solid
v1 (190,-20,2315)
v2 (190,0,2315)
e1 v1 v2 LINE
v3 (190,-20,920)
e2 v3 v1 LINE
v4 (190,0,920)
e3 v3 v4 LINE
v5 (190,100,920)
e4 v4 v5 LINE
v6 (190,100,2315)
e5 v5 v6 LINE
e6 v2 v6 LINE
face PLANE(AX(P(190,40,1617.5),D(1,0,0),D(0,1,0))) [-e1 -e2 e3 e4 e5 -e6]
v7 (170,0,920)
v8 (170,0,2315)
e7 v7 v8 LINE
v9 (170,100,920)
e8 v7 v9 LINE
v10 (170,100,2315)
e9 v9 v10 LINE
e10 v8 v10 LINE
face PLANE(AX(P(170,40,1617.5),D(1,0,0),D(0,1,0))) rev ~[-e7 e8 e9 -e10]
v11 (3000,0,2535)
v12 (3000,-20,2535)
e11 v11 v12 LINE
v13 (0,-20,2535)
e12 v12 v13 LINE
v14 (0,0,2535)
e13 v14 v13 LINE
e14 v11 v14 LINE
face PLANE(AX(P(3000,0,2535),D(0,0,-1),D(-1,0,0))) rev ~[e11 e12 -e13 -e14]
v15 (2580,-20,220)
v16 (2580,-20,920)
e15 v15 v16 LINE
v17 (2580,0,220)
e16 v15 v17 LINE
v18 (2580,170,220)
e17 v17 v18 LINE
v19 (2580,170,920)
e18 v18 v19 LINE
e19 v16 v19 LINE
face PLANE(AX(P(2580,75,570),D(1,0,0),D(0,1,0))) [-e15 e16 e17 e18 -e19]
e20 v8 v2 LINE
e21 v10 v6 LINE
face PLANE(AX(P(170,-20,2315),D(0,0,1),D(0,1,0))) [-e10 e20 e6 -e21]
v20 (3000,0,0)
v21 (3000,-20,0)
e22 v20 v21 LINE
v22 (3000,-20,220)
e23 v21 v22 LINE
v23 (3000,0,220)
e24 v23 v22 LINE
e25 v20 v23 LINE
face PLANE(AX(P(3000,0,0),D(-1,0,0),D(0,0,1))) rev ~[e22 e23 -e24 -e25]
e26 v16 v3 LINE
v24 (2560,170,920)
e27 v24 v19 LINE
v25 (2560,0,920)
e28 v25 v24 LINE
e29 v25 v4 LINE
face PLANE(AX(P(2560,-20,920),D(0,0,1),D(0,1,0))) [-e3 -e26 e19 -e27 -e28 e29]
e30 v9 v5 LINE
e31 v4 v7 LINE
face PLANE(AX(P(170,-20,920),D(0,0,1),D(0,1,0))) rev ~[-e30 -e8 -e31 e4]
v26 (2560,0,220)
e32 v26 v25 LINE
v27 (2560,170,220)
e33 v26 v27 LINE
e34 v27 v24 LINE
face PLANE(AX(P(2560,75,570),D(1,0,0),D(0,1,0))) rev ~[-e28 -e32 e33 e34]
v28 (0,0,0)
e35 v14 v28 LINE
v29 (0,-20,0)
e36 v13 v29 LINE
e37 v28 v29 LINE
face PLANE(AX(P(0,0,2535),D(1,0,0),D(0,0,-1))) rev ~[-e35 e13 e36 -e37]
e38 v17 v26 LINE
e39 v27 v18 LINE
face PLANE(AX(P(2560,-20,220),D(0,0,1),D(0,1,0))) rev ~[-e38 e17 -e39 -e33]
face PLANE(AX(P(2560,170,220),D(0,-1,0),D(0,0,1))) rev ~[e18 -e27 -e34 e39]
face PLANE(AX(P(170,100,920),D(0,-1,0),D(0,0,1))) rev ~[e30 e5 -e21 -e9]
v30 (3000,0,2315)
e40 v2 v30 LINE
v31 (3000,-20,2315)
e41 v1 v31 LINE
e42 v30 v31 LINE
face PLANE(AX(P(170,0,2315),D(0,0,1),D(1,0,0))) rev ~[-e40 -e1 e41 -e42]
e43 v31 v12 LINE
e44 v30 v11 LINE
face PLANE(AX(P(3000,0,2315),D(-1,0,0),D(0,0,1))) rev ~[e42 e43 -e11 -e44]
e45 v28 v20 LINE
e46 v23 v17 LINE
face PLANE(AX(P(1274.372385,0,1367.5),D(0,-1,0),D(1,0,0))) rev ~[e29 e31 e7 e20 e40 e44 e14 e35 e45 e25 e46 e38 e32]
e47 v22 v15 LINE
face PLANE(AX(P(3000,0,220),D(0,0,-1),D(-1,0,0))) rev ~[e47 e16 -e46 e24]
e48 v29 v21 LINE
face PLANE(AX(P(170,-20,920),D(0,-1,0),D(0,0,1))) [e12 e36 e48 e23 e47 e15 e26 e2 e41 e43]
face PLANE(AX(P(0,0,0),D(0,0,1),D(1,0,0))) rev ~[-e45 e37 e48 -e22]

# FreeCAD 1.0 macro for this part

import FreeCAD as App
import Part
import Sketcher
from FreeCAD import Vector


def add_polygon(sketch, points):
    """Adds a closed chain of lines whose ends are joined by coincident constraints."""
    first, n = sketch.GeometryCount, len(points)
    for a, b in zip(points, points[1:] + points[:1]):
        sketch.addGeometry(Part.LineSegment(App.Vector(*a, 0), App.Vector(*b, 0)), False)
    for i in range(n):
        sketch.addConstraint(Sketcher.Constraint("Coincident", first + i, 2, first + (i + 1) % n, 1))

doc = App.newDocument("Part")
body = doc.addObject("PartDesign::Body", "Body")

# Sketch on XZ plane
sketch1 = body.newObject("Sketcher::SketchObject", "Sketch")
sketch1.AttachmentSupport = (doc.getObject("XZ_Plane"), [""])
sketch1.MapMode = "FlatFace"
add_polygon(sketch1, [(0, 0), (3000, 0), (3000, 220), (2560, 220), (2560, 920), (170, 920), (170, 2315), (3000, 2315), (3000, 2535), (0, 2535)])  # lines 0-9
sketch1.addConstraint([
    Sketcher.Constraint("Horizontal", 0),
    Sketcher.Constraint("Vertical", 1),
    Sketcher.Constraint("Horizontal", 2),
    Sketcher.Constraint("Vertical", 3),
    Sketcher.Constraint("Horizontal", 4),
    Sketcher.Constraint("Vertical", 5),
    Sketcher.Constraint("Horizontal", 6),
    Sketcher.Constraint("Vertical", 7),
    Sketcher.Constraint("Horizontal", 8),
    Sketcher.Constraint("Vertical", 9),
    Sketcher.Constraint("Coincident", 9, 2, -1, 1),
    Sketcher.Constraint("Vertical", 1, 2, 6, 2),
    Sketcher.Constraint("Equal", 1, 7),
    Sketcher.Constraint("DistanceX", 0, 1, 0, 2, 3000.0),
    Sketcher.Constraint("DistanceX", 2, 2, 2, 1, 440.0),
    Sketcher.Constraint("DistanceX", 4, 2, 4, 1, 2390.0),
    Sketcher.Constraint("DistanceY", 1, 1, 1, 2, 220.0),
    Sketcher.Constraint("DistanceY", 3, 1, 3, 2, 700.0),
    Sketcher.Constraint("DistanceY", 5, 1, 5, 2, 1395.0),
])
pad1 = body.newObject("PartDesign::Pad", "Pad")
pad1.Profile = sketch1
pad1.Length = 20

# Sketch on YZ plane
sketch2 = body.newObject("Sketcher::SketchObject", "Sketch001")
sketch2.AttachmentSupport = (doc.getObject("YZ_Plane"), [""])
sketch2.MapMode = "FlatFace"
sketch2.AttachmentOffset = App.Placement(Vector(0, 0, 2560), App.Rotation())
add_polygon(sketch2, [(-20, 920), (-20, 220), (170, 220), (170, 920)])  # lines 0-3
sketch2.addConstraint([
    Sketcher.Constraint("Vertical", 0),
    Sketcher.Constraint("Horizontal", 1),
    Sketcher.Constraint("Vertical", 2),
    Sketcher.Constraint("Horizontal", 3),
    Sketcher.Constraint("DistanceX", 1, 1, 1, 2, 190.0),
    Sketcher.Constraint("DistanceY", 0, 2, 0, 1, 700.0),
    Sketcher.Constraint("DistanceX", 0, 2, -1, 1, 20.0),
    Sketcher.Constraint("DistanceY", -1, 1, 0, 2, 220.0),
])
pad2 = body.newObject("PartDesign::Pad", "Pad001")
pad2.Profile = sketch2
pad2.Length = 20

# Sketch on YZ plane
sketch3 = body.newObject("Sketcher::SketchObject", "Sketch002")
sketch3.AttachmentSupport = (doc.getObject("YZ_Plane"), [""])
sketch3.MapMode = "FlatFace"
sketch3.AttachmentOffset = App.Placement(Vector(0, 0, 170), App.Rotation())
add_polygon(sketch3, [(-20, 2315), (-20, 920), (100, 920), (100, 2315)])  # lines 0-3
sketch3.addConstraint([
    Sketcher.Constraint("Vertical", 0),
    Sketcher.Constraint("Horizontal", 1),
    Sketcher.Constraint("Vertical", 2),
    Sketcher.Constraint("Horizontal", 3),
    Sketcher.Constraint("DistanceX", 1, 1, 1, 2, 120.0),
    Sketcher.Constraint("DistanceY", 0, 2, 0, 1, 1395.0),
    Sketcher.Constraint("DistanceX", 0, 2, -1, 1, 20.0),
    Sketcher.Constraint("DistanceY", -1, 1, 0, 2, 920.0),
])
pad3 = body.newObject("PartDesign::Pad", "Pad002")
pad3.Profile = sketch3
pad3.Length = 20

doc.recompute()
